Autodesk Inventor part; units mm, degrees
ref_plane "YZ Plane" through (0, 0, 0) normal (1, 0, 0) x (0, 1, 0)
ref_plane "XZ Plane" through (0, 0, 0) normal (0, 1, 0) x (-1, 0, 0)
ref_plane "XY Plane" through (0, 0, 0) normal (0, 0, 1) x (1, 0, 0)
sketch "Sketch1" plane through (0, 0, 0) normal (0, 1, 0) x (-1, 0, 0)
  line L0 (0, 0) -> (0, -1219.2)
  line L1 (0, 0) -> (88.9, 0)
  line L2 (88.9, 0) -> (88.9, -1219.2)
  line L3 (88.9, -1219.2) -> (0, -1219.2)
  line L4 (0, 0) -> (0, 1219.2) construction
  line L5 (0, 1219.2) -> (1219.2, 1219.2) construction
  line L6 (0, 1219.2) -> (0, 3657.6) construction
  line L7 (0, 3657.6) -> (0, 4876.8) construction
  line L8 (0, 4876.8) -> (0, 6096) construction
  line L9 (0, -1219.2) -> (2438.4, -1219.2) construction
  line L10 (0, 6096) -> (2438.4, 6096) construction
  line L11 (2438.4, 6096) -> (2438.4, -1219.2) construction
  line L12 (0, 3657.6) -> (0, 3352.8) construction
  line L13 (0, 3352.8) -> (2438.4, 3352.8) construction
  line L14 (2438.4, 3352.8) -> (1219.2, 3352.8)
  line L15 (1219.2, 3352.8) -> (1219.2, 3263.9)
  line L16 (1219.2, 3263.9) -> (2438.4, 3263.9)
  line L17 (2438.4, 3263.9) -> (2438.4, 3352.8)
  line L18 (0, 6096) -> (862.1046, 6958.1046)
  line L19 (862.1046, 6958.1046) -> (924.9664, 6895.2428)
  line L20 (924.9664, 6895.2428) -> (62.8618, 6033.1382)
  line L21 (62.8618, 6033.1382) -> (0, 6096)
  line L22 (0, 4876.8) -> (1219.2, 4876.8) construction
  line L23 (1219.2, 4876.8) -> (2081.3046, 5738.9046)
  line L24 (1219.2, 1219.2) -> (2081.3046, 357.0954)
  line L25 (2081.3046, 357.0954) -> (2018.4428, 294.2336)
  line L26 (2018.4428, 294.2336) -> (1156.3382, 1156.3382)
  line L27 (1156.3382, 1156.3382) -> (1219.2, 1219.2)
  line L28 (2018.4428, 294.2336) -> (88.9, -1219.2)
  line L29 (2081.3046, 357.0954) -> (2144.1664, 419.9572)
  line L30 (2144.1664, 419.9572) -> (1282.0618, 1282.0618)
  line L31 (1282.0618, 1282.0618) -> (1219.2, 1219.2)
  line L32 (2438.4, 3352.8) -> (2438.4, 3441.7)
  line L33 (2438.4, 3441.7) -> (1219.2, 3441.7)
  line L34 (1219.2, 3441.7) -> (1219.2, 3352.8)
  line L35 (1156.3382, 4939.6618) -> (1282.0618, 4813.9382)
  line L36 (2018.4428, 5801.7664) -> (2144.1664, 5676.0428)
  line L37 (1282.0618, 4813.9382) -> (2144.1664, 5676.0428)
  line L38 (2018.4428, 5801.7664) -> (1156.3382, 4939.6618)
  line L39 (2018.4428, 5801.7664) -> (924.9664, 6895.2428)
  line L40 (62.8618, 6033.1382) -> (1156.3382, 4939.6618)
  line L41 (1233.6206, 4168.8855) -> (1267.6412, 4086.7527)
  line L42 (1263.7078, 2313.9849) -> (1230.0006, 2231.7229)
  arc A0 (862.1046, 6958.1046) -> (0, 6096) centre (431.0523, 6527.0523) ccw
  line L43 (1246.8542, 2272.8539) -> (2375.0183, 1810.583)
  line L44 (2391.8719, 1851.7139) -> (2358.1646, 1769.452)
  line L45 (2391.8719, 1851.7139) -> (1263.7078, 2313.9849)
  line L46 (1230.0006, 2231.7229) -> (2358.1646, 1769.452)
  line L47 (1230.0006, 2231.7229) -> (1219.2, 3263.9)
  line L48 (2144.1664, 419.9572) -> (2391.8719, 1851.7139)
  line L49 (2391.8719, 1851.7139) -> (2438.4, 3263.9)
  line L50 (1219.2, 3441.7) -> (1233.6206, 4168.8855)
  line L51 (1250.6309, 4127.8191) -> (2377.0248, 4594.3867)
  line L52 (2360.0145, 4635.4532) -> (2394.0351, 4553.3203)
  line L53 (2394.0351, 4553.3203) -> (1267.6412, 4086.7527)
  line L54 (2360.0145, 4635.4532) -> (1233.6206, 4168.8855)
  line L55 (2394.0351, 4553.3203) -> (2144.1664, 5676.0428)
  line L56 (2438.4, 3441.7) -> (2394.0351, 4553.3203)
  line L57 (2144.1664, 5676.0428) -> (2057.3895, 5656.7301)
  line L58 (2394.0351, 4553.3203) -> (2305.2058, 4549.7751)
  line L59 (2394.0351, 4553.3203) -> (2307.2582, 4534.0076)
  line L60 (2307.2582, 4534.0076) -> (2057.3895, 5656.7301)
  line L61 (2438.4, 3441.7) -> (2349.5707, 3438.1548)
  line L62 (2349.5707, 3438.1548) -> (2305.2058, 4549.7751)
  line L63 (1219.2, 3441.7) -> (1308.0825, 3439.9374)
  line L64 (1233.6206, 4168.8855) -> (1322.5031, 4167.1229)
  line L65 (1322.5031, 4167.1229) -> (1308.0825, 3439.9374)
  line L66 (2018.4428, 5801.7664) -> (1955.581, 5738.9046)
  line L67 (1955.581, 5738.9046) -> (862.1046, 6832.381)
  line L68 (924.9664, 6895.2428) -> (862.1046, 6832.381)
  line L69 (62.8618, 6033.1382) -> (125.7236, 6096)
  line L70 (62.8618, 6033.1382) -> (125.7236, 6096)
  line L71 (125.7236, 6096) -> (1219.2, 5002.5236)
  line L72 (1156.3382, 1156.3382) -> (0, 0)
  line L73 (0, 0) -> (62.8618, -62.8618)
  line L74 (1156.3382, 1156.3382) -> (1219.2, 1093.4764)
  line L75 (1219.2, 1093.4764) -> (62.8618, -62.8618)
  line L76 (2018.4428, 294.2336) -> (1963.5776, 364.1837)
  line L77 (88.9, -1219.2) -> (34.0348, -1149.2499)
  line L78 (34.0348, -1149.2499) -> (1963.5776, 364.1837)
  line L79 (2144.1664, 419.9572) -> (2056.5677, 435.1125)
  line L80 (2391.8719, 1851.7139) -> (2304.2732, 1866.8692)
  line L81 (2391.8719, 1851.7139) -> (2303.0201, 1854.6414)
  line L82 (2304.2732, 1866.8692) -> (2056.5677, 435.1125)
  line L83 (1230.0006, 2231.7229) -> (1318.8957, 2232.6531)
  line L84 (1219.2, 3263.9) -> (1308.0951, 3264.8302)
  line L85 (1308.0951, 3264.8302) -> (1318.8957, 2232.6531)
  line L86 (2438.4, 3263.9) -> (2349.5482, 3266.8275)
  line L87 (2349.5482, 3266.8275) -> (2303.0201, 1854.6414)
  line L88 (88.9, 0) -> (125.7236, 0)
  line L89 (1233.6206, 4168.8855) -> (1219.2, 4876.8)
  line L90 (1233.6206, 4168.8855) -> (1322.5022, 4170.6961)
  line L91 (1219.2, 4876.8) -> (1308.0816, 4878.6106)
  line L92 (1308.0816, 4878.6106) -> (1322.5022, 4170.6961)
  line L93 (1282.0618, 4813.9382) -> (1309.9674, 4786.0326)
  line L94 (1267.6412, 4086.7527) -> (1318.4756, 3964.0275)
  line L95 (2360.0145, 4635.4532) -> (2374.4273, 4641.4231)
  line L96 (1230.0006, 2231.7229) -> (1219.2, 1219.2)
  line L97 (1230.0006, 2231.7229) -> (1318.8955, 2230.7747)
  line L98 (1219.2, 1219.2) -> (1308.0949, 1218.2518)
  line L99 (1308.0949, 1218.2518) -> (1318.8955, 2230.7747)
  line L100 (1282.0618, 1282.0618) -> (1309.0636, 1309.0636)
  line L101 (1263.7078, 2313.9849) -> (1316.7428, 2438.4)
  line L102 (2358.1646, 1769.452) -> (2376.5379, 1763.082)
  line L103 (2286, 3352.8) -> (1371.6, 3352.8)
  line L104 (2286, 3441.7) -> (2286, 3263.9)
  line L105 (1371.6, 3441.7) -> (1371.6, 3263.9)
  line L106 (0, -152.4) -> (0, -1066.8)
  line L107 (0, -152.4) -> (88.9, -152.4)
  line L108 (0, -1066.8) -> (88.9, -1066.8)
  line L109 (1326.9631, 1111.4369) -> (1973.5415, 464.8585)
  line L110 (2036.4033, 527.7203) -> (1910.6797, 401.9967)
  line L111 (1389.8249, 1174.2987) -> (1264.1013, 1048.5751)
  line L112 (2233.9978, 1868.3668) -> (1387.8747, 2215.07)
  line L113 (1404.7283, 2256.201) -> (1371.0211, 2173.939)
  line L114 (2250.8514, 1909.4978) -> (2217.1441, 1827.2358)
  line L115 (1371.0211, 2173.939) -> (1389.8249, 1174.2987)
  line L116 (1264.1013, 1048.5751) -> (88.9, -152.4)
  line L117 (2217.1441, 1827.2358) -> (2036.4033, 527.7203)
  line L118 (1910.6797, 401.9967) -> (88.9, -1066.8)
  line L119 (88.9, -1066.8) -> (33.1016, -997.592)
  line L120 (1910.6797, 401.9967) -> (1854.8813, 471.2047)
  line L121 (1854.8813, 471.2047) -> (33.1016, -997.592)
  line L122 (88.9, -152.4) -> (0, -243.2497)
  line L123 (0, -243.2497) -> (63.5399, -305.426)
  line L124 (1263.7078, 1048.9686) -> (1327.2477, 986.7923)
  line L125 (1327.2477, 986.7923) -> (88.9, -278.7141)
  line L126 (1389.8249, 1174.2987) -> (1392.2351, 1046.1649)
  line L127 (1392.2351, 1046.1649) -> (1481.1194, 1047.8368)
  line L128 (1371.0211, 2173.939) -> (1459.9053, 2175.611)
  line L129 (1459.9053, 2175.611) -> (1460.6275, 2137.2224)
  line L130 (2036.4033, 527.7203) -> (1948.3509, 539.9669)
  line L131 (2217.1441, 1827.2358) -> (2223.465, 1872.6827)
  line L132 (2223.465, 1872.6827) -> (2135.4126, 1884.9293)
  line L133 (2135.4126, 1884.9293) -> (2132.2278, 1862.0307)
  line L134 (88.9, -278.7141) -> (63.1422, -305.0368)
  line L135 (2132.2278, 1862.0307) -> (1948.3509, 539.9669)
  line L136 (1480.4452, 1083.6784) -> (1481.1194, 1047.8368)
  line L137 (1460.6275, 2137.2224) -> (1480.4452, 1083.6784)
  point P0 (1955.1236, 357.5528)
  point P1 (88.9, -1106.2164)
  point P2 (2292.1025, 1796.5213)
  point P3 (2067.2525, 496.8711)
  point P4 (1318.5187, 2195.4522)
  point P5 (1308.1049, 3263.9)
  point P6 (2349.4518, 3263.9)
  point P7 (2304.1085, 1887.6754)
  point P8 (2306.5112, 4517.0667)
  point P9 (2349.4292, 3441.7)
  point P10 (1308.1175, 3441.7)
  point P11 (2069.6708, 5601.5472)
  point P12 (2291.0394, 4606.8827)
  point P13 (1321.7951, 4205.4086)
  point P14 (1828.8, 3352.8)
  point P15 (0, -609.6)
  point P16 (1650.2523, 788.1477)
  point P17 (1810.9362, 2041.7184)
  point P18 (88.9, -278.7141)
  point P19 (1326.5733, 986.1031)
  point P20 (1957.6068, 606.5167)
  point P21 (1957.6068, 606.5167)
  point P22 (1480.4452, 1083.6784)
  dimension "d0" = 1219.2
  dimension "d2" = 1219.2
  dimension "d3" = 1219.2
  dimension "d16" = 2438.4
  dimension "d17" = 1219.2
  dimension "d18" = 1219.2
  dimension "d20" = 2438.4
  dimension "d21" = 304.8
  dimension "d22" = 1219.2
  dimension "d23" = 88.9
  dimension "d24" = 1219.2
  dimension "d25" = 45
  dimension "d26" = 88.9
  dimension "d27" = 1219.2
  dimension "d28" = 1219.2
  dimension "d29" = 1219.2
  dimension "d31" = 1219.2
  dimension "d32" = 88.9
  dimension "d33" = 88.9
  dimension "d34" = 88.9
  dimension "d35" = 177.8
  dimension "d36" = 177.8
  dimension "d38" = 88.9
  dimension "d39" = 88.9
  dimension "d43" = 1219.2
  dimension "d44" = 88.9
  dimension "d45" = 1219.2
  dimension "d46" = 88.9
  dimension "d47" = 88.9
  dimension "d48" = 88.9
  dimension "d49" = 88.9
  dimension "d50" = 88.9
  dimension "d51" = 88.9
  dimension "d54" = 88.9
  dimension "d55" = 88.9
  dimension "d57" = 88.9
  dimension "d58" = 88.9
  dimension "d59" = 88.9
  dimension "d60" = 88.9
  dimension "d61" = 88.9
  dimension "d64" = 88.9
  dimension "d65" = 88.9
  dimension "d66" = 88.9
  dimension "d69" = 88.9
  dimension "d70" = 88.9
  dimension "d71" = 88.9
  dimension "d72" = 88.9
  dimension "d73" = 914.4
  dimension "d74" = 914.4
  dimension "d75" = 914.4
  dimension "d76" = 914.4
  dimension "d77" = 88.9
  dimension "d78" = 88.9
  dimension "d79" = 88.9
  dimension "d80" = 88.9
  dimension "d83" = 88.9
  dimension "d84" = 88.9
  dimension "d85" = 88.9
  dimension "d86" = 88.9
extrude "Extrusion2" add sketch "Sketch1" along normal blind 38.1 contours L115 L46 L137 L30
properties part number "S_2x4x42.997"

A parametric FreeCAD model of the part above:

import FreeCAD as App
import Part
import Sketcher

V = App.Vector
Q = App.Units.Quantity

doc = App.newDocument("Part")
body = doc.addObject("PartDesign::Body", "Body")

sketch1 = body.newObject("Sketcher::SketchObject", "Sketch")
sketch1.AttachmentSupport = (doc.getObject("XZ_Plane"), [""])
sketch1.MapMode = "FlatFace"
sketch1.addGeometry(Part.LineSegment(V(-1371, 2174, 0), V(-1390, 1174, 0)), False)
sketch1.addGeometry(Part.LineSegment(V(-1390, 1174, 0), V(-1480, 1084, 0)), False)
sketch1.addGeometry(Part.LineSegment(V(-1480, 1084, 0), V(-1461, 2137, 0)), False)
sketch1.addGeometry(Part.LineSegment(V(-1461, 2137, 0), V(-1371, 2174, 0)), False)
sketch1.addConstraint(Sketcher.Constraint("Coincident", 0, 2, 1, 1))
sketch1.addConstraint(Sketcher.Constraint("Coincident", 1, 2, 2, 1))
sketch1.addConstraint(Sketcher.Constraint("Coincident", 2, 2, 3, 1))
sketch1.addConstraint(Sketcher.Constraint("Coincident", 3, 2, 0, 1))
sketch1.addConstraint(Sketcher.Constraint("Parallel", 0, 2))
sketch1.addConstraint(Sketcher.Constraint("Angle", 1, Q("-135 deg")))
sketch1.addConstraint(Sketcher.Constraint("DistanceY", -1, 1, 1, 2, Q("42.6645 in")))
sketch1.addConstraint(Sketcher.Constraint("DistanceX", 3, 2, -1, 1, Q("53.9772 in")))
sketch1.addConstraint(Sketcher.Constraint("DistanceX", 2, 2, 0, 2, Q("2.7875 in")))
sketch1.addConstraint(Sketcher.Constraint("DistanceY", 1, 2, 2, 2, Q("41.4781 in")))
sketch1.addConstraint(Sketcher.Constraint("DistanceX", 2, 2, 3, 2, Q("3.5278 in")))
sketch1.addConstraint(Sketcher.Constraint("Distance", 0, 999.8171))
pad1 = body.newObject("PartDesign::Pad", "Pad")
pad1.Profile = sketch1
pad1.Length = Q("1.5 in")
pad1.Reversed = True

doc.recompute()
